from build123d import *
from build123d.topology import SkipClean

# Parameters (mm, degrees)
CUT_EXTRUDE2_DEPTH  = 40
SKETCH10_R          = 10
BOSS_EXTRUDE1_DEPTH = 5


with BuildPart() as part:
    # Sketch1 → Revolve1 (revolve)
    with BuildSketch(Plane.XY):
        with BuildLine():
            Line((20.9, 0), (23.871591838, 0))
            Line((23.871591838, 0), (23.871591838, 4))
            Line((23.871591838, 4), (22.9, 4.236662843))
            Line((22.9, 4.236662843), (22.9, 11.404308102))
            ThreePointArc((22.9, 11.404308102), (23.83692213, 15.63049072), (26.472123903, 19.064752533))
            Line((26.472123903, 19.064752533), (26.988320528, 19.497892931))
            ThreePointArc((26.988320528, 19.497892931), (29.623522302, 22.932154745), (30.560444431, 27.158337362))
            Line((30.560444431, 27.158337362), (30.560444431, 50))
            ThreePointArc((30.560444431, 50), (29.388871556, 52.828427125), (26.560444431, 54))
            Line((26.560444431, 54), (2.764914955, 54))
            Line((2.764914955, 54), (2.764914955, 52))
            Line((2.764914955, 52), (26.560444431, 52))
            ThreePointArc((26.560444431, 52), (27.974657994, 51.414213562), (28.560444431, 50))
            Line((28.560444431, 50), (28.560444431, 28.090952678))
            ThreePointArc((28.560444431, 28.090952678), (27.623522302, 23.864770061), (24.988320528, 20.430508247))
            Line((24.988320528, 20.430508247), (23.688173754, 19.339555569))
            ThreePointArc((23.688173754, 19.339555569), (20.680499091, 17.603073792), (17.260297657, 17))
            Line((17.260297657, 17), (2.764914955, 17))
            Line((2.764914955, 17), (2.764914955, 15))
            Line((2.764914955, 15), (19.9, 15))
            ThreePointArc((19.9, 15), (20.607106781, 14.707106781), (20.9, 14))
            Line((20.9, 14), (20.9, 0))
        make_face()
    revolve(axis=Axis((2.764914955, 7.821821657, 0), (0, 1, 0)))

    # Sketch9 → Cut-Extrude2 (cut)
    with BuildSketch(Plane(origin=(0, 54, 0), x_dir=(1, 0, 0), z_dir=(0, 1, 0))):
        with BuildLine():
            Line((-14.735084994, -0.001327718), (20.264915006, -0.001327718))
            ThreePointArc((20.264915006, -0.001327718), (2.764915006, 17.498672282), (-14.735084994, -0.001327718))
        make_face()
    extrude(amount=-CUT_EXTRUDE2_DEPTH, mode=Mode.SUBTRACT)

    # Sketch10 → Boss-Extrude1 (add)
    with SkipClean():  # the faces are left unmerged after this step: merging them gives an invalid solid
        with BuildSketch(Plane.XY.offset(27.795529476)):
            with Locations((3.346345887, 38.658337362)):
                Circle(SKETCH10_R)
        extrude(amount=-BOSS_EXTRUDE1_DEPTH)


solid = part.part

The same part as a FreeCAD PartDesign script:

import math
import FreeCAD as App
import Part
import Sketcher

V = App.Vector
Q = App.Units.Quantity

doc = App.newDocument("Part")
body = doc.addObject("PartDesign::Body", "Body")

sketch1 = body.newObject("Sketcher::SketchObject", "Sketch")
sketch1.AttachmentSupport = (doc.getObject("XY_Plane"), [""])
sketch1.MapMode = "FlatFace"
sketch1.addGeometry([
    Part.LineSegment(V(20.9, 0, 0), V(23.9, 0, 0)),
    Part.LineSegment(V(23.9, 0, 0), V(23.9, 4, 0)),
    Part.LineSegment(V(23.9, 4, 0), V(22.9, 4.2, 0)),
    Part.LineSegment(V(22.9, 4.2, 0), V(22.9, 11.4, 0)),
    Part.ArcOfCircle(Part.Circle(V(32.9, 11.4, 0), V(0, 0, 1), 10), math.radians(130), math.radians(180)),
    Part.LineSegment(V(26.5, 19.1, 0), V(27, 19.5, 0)),
    Part.ArcOfCircle(Part.Circle(V(20.6, 27.2, 0), V(0, 0, 1), 10), math.radians(-50), math.radians(0)),
    Part.LineSegment(V(30.6, 27.2, 0), V(30.6, 50, 0)),
    Part.ArcOfCircle(Part.Circle(V(26.6, 50, 0), V(0, 0, 1), 4), math.radians(0), math.radians(90)),
    Part.LineSegment(V(26.6, 54, 0), V(2.8, 54, 0)),
    Part.LineSegment(V(2.8, 54, 0), V(2.8, 52, 0)),
    Part.LineSegment(V(2.8, 52, 0), V(26.6, 52, 0)),
    Part.ArcOfCircle(Part.Circle(V(26.6, 50, 0), V(0, 0, 1), 2), math.radians(0), math.radians(90)),
    Part.LineSegment(V(28.6, 50, 0), V(28.6, 28.1, 0)),
    Part.ArcOfCircle(Part.Circle(V(18.6, 28.1, 0), V(0, 0, 1), 10), math.radians(-50), math.radians(0)),
    Part.LineSegment(V(25, 20.4, 0), V(23.7, 19.3, 0)),
    Part.ArcOfCircle(Part.Circle(V(17.3, 27, 0), V(0, 0, 1), 10), math.radians(-90), math.radians(-50)),
    Part.LineSegment(V(17.3, 17, 0), V(2.8, 17, 0)),
    Part.LineSegment(V(2.8, 17, 0), V(2.8, 15, 0)),
    Part.LineSegment(V(2.8, 15, 0), V(19.9, 15, 0)),
    Part.ArcOfCircle(Part.Circle(V(19.9, 14, 0), V(0, 0, 1), 1), math.radians(0), math.radians(90)),
    Part.LineSegment(V(20.9, 14, 0), V(20.9, 0, 0)),
], False)
sketch1.addGeometry(Part.LineSegment(V(2.8, 0, 0), V(2.8, 54, 0)), True)
sketch1.addConstraint([
    Sketcher.Constraint("Coincident", 0, 2, 1, 1),
    Sketcher.Constraint("Coincident", 1, 2, 2, 1),
    Sketcher.Constraint("Coincident", 2, 2, 3, 1),
    Sketcher.Constraint("Tangent", 3, 2, 4, 2),
    Sketcher.Constraint("Tangent", 4, 1, 5, 1),
    Sketcher.Constraint("Tangent", 5, 2, 6, 1),
    Sketcher.Constraint("Tangent", 6, 2, 7, 1),
    Sketcher.Constraint("Tangent", 7, 2, 8, 1),
    Sketcher.Constraint("Tangent", 8, 2, 9, 1),
    Sketcher.Constraint("Coincident", 9, 2, 10, 1),
    Sketcher.Constraint("Coincident", 10, 2, 11, 1),
    Sketcher.Constraint("Tangent", 11, 2, 12, 2),
    Sketcher.Constraint("Tangent", 12, 1, 13, 1),
    Sketcher.Constraint("Tangent", 13, 2, 14, 2),
    Sketcher.Constraint("Tangent", 14, 1, 15, 1),
    Sketcher.Constraint("Tangent", 15, 2, 16, 2),
    Sketcher.Constraint("Tangent", 16, 1, 17, 1),
    Sketcher.Constraint("Coincident", 17, 2, 18, 1),
    Sketcher.Constraint("Coincident", 18, 2, 19, 1),
    Sketcher.Constraint("Tangent", 19, 2, 20, 2),
    Sketcher.Constraint("Tangent", 20, 1, 21, 1),
    Sketcher.Constraint("Coincident", 21, 2, 0, 1),
    Sketcher.Constraint("Horizontal", 0),
    Sketcher.Constraint("Vertical", 1),
    Sketcher.Constraint("Vertical", 3),
    Sketcher.Constraint("Vertical", 7),
    Sketcher.Constraint("Horizontal", 9),
    Sketcher.Constraint("Vertical", 10),
    Sketcher.Constraint("Horizontal", 11),
    Sketcher.Constraint("Vertical", 13),
    Sketcher.Constraint("Horizontal", 17),
    Sketcher.Constraint("Vertical", 18),
    Sketcher.Constraint("Horizontal", 19),
    Sketcher.Constraint("Vertical", 21),
    Sketcher.Constraint("Vertical", 22),
    Sketcher.Constraint("Coincident", 12, 3, 8, 3),
    Sketcher.Constraint("Coincident", 22, 2, 9, 2),
    Sketcher.Constraint("Equal", 4, 6),
    Sketcher.Constraint("Equal", 6, 14),
    Sketcher.Constraint("Equal", 14, 16),
    Sketcher.Constraint("PointOnObject", 0, 2, -1),
    Sketcher.Constraint("PointOnObject", 22, 1, -1),
    Sketcher.Constraint("Parallel", 5, 15),
    Sketcher.Constraint("Vertical", 10, 2, 17, 2),
    Sketcher.Constraint("Equal", 10, 18),
    Sketcher.Constraint("Radius", 4, Q("10 mm")),
    Sketcher.Constraint("Radius", 8, Q("4 mm")),
    Sketcher.Constraint("Radius", 12, Q("2 mm")),
    Sketcher.Constraint("Radius", 20, Q("1 mm")),
    Sketcher.Constraint("DistanceY", 1, 1, 1, 2, Q("4 mm")),
    Sketcher.Constraint("DistanceY", 21, 2, 21, 1, Q("14 mm")),
    Sketcher.Constraint("DistanceY", 22, 1, 22, 2, Q("54 mm")),
    Sketcher.Constraint("Angle", 5, Q("40 deg")),
    Sketcher.Constraint("Distance", 2, Q("1 mm")),
    Sketcher.Constraint("DistanceX", 20, 3, 4, 3, Q("13 mm")),
    Sketcher.Constraint("DistanceX", -1, 1, 4, 3, Q("32.9 mm")),
    Sketcher.Constraint("DistanceX", 0, 1, 0, 2, Q("2.971592 mm")),
    Sketcher.Constraint("DistanceX", 9, 2, 9, 1, Q("23.795529 mm")),
    Sketcher.Constraint("DistanceY", 4, 1, 14, 3, Q("9.0262 mm")),
    Sketcher.Constraint("Distance", 15, Q("1.697221 mm")),
    Sketcher.Constraint("DistanceX", 19, 1, 19, 2, Q("17.135085 mm")),
])
revolution = body.newObject("PartDesign::Revolution", "Revolution")
revolution.Profile = sketch1
revolution.ReferenceAxis = (sketch1, ["Axis0"])
revolution.Angle = 360

sketch2 = body.newObject("Sketcher::SketchObject", "Sketch001")
sketch2.AttachmentSupport = (doc.getObject("XZ_Plane"), [""])
sketch2.MapMode = "FlatFace"
sketch2.AttachmentOffset = App.Placement(V(0, 0, -54), App.Rotation())
sketch2.addGeometry([
    Part.LineSegment(V(-15, 0, 0), V(20, 0, 0)),
    Part.ArcOfCircle(Part.Circle(V(3, 0, 0), V(0, 0, 1), 18), math.radians(180), math.radians(360)),
], False)
sketch2.addConstraint([
    Sketcher.Constraint("Coincident", 0, 1, 1, 1),
    Sketcher.Constraint("Coincident", 1, 2, 0, 2),
    Sketcher.Constraint("Horizontal", 0),
    Sketcher.Constraint("Horizontal", 1, 3, 0, 1),
    Sketcher.Constraint("Radius", 1, Q("17.5 mm")),
    Sketcher.Constraint("DistanceX", -1, 1, 1, 3, Q("2.764915 mm")),
    Sketcher.Constraint("DistanceY", -1, 1, 1, 3, Q("0.001328 mm")),
])
pocket1 = body.newObject("PartDesign::Pocket", "Pocket")
pocket1.Profile = sketch2
pocket1.Length = 40
pocket1.Reversed = True

sketch3 = body.newObject("Sketcher::SketchObject", "Sketch002")
sketch3.AttachmentSupport = (doc.getObject("XY_Plane"), [""])
sketch3.MapMode = "FlatFace"
sketch3.AttachmentOffset = App.Placement(V(0, 0, 27.795529), App.Rotation())
sketch3.addGeometry(Part.Circle(V(3, 39, 0), V(0, 0, 1), 10), False)
sketch3.addConstraint([
    Sketcher.Constraint("Diameter", 0, Q("20 mm")),
    Sketcher.Constraint("DistanceX", -1, 1, 0, 3, Q("3.346346 mm")),
    Sketcher.Constraint("DistanceY", -1, 1, 0, 3, Q("38.658337 mm")),
])
pad1 = body.newObject("PartDesign::Pad", "Pad")
pad1.Profile = sketch3
pad1.Length = 5
pad1.Reversed = True

doc.recompute()
